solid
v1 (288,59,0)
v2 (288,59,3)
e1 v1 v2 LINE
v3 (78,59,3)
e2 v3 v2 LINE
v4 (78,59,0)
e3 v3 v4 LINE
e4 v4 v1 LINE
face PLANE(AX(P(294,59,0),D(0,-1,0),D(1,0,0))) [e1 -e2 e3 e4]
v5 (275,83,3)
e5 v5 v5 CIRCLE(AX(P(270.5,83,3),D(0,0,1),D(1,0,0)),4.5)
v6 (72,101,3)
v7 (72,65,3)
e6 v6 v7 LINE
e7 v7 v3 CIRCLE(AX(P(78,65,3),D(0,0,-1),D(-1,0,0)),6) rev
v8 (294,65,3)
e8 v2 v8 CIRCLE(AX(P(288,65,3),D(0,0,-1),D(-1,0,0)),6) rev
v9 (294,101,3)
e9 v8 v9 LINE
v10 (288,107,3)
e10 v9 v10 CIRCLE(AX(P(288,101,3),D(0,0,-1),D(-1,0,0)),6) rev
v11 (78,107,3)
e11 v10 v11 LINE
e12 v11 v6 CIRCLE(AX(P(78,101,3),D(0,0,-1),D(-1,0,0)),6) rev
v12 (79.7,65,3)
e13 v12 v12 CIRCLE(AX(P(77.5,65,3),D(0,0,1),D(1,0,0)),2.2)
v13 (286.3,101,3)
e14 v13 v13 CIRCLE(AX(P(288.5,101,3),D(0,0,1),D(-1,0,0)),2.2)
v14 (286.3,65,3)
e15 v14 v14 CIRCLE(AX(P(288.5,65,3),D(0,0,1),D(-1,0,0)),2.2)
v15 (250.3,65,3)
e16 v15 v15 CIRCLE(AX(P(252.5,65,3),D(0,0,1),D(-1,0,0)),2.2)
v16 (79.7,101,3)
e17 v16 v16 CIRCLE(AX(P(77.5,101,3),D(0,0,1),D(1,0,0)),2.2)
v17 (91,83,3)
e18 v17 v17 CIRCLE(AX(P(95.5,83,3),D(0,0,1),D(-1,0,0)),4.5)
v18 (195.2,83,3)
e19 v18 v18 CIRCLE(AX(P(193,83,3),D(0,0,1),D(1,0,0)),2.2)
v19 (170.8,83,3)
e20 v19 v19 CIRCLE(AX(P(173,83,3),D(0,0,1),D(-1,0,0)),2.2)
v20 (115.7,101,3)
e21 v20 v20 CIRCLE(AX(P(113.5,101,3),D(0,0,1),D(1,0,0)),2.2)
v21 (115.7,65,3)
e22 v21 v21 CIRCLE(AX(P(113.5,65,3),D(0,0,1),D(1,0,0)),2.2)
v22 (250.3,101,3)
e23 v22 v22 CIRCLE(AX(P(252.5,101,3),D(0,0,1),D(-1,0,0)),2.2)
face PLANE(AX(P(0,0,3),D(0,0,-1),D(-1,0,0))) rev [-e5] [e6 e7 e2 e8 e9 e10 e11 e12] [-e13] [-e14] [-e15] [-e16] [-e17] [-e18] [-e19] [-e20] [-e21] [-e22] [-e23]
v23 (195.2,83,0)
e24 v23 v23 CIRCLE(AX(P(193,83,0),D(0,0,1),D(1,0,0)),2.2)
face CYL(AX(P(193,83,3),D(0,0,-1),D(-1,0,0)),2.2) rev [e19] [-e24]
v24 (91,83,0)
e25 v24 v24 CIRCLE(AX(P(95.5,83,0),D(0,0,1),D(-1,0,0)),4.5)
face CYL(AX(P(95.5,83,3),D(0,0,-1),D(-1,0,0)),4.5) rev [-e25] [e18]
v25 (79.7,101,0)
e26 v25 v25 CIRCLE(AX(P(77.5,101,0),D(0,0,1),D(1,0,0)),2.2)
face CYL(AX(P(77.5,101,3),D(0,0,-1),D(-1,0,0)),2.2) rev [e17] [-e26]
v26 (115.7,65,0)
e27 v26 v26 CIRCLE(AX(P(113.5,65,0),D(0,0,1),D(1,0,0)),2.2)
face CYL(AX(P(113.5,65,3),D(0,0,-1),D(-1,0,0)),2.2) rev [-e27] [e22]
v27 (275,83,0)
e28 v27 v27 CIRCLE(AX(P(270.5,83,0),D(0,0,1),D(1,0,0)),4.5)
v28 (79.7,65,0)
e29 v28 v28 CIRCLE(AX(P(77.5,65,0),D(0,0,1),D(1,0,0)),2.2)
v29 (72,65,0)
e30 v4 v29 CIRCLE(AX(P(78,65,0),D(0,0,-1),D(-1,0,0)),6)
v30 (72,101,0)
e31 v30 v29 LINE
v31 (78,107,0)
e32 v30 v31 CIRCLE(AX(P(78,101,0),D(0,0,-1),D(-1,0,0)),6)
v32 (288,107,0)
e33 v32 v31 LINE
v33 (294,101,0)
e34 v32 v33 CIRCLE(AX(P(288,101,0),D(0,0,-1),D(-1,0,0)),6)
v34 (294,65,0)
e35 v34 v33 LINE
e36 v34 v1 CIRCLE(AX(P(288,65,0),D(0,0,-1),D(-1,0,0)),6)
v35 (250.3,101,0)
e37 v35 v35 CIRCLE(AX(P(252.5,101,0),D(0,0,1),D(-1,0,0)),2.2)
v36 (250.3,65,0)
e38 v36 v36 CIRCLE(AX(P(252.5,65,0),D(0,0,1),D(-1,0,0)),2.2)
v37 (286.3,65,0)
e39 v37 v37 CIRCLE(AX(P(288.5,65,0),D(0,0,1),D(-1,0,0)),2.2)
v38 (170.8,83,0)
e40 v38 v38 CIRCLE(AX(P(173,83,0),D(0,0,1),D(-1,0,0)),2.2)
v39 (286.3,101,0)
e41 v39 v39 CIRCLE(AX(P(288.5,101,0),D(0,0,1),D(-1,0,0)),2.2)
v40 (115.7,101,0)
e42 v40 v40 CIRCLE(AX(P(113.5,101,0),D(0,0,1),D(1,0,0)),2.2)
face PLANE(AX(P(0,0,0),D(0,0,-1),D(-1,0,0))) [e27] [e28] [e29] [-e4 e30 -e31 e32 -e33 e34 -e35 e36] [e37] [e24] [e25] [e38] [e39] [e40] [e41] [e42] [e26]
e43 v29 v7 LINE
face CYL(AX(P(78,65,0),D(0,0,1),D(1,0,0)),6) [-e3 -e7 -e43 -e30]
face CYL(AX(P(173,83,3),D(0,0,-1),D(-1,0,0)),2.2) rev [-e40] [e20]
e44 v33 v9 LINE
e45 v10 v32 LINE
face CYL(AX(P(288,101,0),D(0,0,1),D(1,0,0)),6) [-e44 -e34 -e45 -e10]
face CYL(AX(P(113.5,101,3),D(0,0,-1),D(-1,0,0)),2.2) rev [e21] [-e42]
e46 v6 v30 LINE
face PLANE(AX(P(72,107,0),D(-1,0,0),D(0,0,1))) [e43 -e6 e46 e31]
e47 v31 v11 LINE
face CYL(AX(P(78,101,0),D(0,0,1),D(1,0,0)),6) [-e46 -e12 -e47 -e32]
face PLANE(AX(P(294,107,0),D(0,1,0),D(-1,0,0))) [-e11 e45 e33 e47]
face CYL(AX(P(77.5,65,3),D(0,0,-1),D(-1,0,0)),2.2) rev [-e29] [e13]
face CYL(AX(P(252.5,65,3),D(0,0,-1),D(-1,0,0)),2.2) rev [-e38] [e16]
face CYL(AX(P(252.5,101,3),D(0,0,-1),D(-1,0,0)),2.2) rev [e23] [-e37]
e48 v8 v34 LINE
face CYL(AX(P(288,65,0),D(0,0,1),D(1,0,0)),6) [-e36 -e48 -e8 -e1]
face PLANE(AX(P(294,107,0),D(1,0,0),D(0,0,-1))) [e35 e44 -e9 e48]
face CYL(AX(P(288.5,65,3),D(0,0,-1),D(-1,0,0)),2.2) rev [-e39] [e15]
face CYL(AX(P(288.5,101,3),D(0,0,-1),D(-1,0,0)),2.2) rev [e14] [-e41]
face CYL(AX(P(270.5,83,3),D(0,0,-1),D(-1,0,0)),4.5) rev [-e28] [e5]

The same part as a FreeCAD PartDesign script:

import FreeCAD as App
import Part
import Sketcher
from FreeCAD import Vector
Q = App.Units.Quantity


def edges_at(feature, points):
    """Names of the edges that pass closest to the given points."""
    edges = feature.Shape.Edges
    near = lambda p: min(range(len(edges)), key=lambda i: edges[i].distToShape(Part.Vertex(*p))[0])
    return sorted({f"Edge{near(p) + 1}" for p in points})


def add_polygon(sketch, points):
    """Adds a closed chain of lines whose ends are joined by coincident constraints."""
    first, n = sketch.GeometryCount, len(points)
    for a, b in zip(points, points[1:] + points[:1]):
        sketch.addGeometry(Part.LineSegment(App.Vector(*a, 0), App.Vector(*b, 0)), False)
    for i in range(n):
        sketch.addConstraint(Sketcher.Constraint("Coincident", first + i, 2, first + (i + 1) % n, 1))

doc = App.newDocument("Part")
body = doc.addObject("PartDesign::Body", "Body")

sketch1 = body.newObject("Sketcher::SketchObject", "Sketch")
sketch1.AttachmentSupport = (doc.getObject("XY_Plane"), [""])
sketch1.MapMode = "FlatFace"
add_polygon(sketch1, [(0, 166), (0, 0), (366, 0), (366, 166)])
sketch1.addGeometry(Part.Circle(Vector(13, 13, 0), Vector(0, 0, 1), 2.2), False)
sketch1.addGeometry(Part.Circle(Vector(173, 13, 0), Vector(0, 0, 1), 2.2), False)
sketch1.addGeometry(Part.Circle(Vector(13, 49, 0), Vector(0, 0, 1), 2.2), False)
sketch1.addGeometry(Part.Circle(Vector(37, 49, 0), Vector(0, 0, 1), 6.5), False)
sketch1.addGeometry(Part.Circle(Vector(61, 49, 0), Vector(0, 0, 1), 6.5), False)
sketch1.addGeometry(Part.Circle(Vector(85, 49, 0), Vector(0, 0, 1), 2.2), False)
sketch1.addGeometry(Part.Circle(Vector(77.5, 65, 0), Vector(0, 0, 1), 2.2), False)
sketch1.addGeometry(Part.Circle(Vector(113.5, 65, 0), Vector(0, 0, 1), 2.2), False)
sketch1.addGeometry(Part.Circle(Vector(193, 13, 0), Vector(0, 0, 1), 2.2), False)
sketch1.addGeometry(Part.Circle(Vector(353, 13, 0), Vector(0, 0, 1), 2.2), False)
sketch1.addGeometry(Part.Circle(Vector(252.5, 65, 0), Vector(0, 0, 1), 2.2), False)
sketch1.addGeometry(Part.Circle(Vector(288.5, 65, 0), Vector(0, 0, 1), 2.2), False)
sketch1.addGeometry(Part.Circle(Vector(13, 83, 0), Vector(0, 0, 1), 2.2), False)
sketch1.addGeometry(Part.Circle(Vector(95.5, 83, 0), Vector(0, 0, 1), 4.5), False)
sketch1.addGeometry(Part.Circle(Vector(77.5, 101, 0), Vector(0, 0, 1), 2.2), False)
sketch1.addGeometry(Part.Circle(Vector(113.5, 101, 0), Vector(0, 0, 1), 2.2), False)
sketch1.addGeometry(Part.Circle(Vector(173, 83, 0), Vector(0, 0, 1), 2.2), False)
sketch1.addGeometry(Part.Circle(Vector(13, 153, 0), Vector(0, 0, 1), 2.2), False)
sketch1.addGeometry(Part.Circle(Vector(173, 153, 0), Vector(0, 0, 1), 2.2), False)
sketch1.addGeometry(Part.Circle(Vector(193, 83, 0), Vector(0, 0, 1), 2.2), False)
sketch1.addGeometry(Part.Circle(Vector(252.5, 101, 0), Vector(0, 0, 1), 2.2), False)
sketch1.addGeometry(Part.Circle(Vector(270.5, 83, 0), Vector(0, 0, 1), 4.5), False)
sketch1.addGeometry(Part.Circle(Vector(288.5, 101, 0), Vector(0, 0, 1), 2.2), False)
sketch1.addGeometry(Part.Circle(Vector(353, 83, 0), Vector(0, 0, 1), 2.2), False)
sketch1.addGeometry(Part.Circle(Vector(193, 153, 0), Vector(0, 0, 1), 2.2), False)
sketch1.addGeometry(Part.Circle(Vector(353, 153, 0), Vector(0, 0, 1), 2.2), False)
sketch1.addConstraint(Sketcher.Constraint("Vertical", 0))
sketch1.addConstraint(Sketcher.Constraint("Horizontal", 1))
sketch1.addConstraint(Sketcher.Constraint("Vertical", 2))
sketch1.addConstraint(Sketcher.Constraint("Horizontal", 3))
sketch1.addConstraint(Sketcher.Constraint("Coincident", 0, 2, -1, 1))
sketch1.addConstraint(Sketcher.Constraint("Equal", 4, 5))
sketch1.addConstraint(Sketcher.Constraint("Equal", 5, 6))
sketch1.addConstraint(Sketcher.Constraint("Equal", 7, 8))
sketch1.addConstraint(Sketcher.Constraint("Equal", 6, 9))
sketch1.addConstraint(Sketcher.Constraint("Equal", 9, 10))
sketch1.addConstraint(Sketcher.Constraint("Equal", 10, 11))
sketch1.addConstraint(Sketcher.Constraint("Equal", 11, 12))
sketch1.addConstraint(Sketcher.Constraint("Equal", 12, 13))
sketch1.addConstraint(Sketcher.Constraint("Equal", 13, 14))
sketch1.addConstraint(Sketcher.Constraint("Equal", 14, 15))
sketch1.addConstraint(Sketcher.Constraint("Equal", 15, 16))
sketch1.addConstraint(Sketcher.Constraint("Equal", 16, 18))
sketch1.addConstraint(Sketcher.Constraint("Equal", 18, 19))
sketch1.addConstraint(Sketcher.Constraint("Equal", 19, 20))
sketch1.addConstraint(Sketcher.Constraint("Equal", 20, 21))
sketch1.addConstraint(Sketcher.Constraint("Equal", 21, 22))
sketch1.addConstraint(Sketcher.Constraint("Equal", 22, 23))
sketch1.addConstraint(Sketcher.Constraint("Equal", 23, 24))
sketch1.addConstraint(Sketcher.Constraint("Equal", 17, 25))
sketch1.addConstraint(Sketcher.Constraint("Equal", 24, 26))
sketch1.addConstraint(Sketcher.Constraint("Equal", 26, 27))
sketch1.addConstraint(Sketcher.Constraint("Equal", 27, 28))
sketch1.addConstraint(Sketcher.Constraint("Equal", 28, 29))
sketch1.addConstraint(Sketcher.Constraint("Horizontal", 4, 3, 5, 3))
sketch1.addConstraint(Sketcher.Constraint("Horizontal", 6, 3, 7, 3))
sketch1.addConstraint(Sketcher.Constraint("Horizontal", 7, 3, 8, 3))
sketch1.addConstraint(Sketcher.Constraint("Horizontal", 8, 3, 9, 3))
sketch1.addConstraint(Sketcher.Constraint("Horizontal", 10, 3, 11, 3))
sketch1.addConstraint(Sketcher.Constraint("Horizontal", 5, 3, 12, 3))
sketch1.addConstraint(Sketcher.Constraint("Horizontal", 12, 3, 13, 3))
sketch1.addConstraint(Sketcher.Constraint("Horizontal", 11, 3, 14, 3))
sketch1.addConstraint(Sketcher.Constraint("Horizontal", 14, 3, 15, 3))
sketch1.addConstraint(Sketcher.Constraint("Horizontal", 16, 3, 17, 3))
sketch1.addConstraint(Sketcher.Constraint("Horizontal", 18, 3, 19, 3))
sketch1.addConstraint(Sketcher.Constraint("Horizontal", 17, 3, 20, 3))
sketch1.addConstraint(Sketcher.Constraint("Horizontal", 21, 3, 22, 3))
sketch1.addConstraint(Sketcher.Constraint("Horizontal", 20, 3, 23, 3))
sketch1.addConstraint(Sketcher.Constraint("Horizontal", 19, 3, 24, 3))
sketch1.addConstraint(Sketcher.Constraint("Horizontal", 23, 3, 25, 3))
sketch1.addConstraint(Sketcher.Constraint("Horizontal", 24, 3, 26, 3))
sketch1.addConstraint(Sketcher.Constraint("Horizontal", 25, 3, 27, 3))
sketch1.addConstraint(Sketcher.Constraint("Horizontal", 22, 3, 28, 3))
sketch1.addConstraint(Sketcher.Constraint("Horizontal", 28, 3, 29, 3))
sketch1.addConstraint(Sketcher.Constraint("Vertical", 4, 3, 6, 3))
sketch1.addConstraint(Sketcher.Constraint("Vertical", 6, 3, 16, 3))
sketch1.addConstraint(Sketcher.Constraint("Vertical", 10, 3, 18, 3))
sketch1.addConstraint(Sketcher.Constraint("Vertical", 11, 3, 19, 3))
sketch1.addConstraint(Sketcher.Constraint("Vertical", 5, 3, 20, 3))
sketch1.addConstraint(Sketcher.Constraint("Vertical", 16, 3, 21, 3))
sketch1.addConstraint(Sketcher.Constraint("Vertical", 20, 3, 22, 3))
sketch1.addConstraint(Sketcher.Constraint("Vertical", 12, 3, 23, 3))
sketch1.addConstraint(Sketcher.Constraint("Vertical", 14, 3, 24, 3))
sketch1.addConstraint(Sketcher.Constraint("Vertical", 15, 3, 26, 3))
sketch1.addConstraint(Sketcher.Constraint("Vertical", 13, 3, 27, 3))
sketch1.addConstraint(Sketcher.Constraint("Vertical", 23, 3, 28, 3))
sketch1.addConstraint(Sketcher.Constraint("Vertical", 27, 3, 29, 3))
sketch1.addConstraint(Sketcher.Constraint("Diameter", 7, Q("13 mm")))
sketch1.addConstraint(Sketcher.Constraint("Diameter", 17, Q("9 mm")))
sketch1.addConstraint(Sketcher.Constraint("Diameter", 4, Q("4.4 mm")))
sketch1.addConstraint(Sketcher.Constraint("DistanceX", 1, 1, 1, 2, Q("366 mm")))
sketch1.addConstraint(Sketcher.Constraint("DistanceY", 0, 2, 0, 1, Q("166 mm")))
sketch1.addConstraint(Sketcher.Constraint("DistanceX", -1, 1, 4, 3, Q("13 mm")))
sketch1.addConstraint(Sketcher.Constraint("DistanceY", -1, 1, 4, 3, Q("13 mm")))
sketch1.addConstraint(Sketcher.Constraint("DistanceX", -1, 1, 5, 3, Q("173 mm")))
sketch1.addConstraint(Sketcher.Constraint("DistanceY", -1, 1, 6, 3, Q("49 mm")))
sketch1.addConstraint(Sketcher.Constraint("DistanceX", -1, 1, 7, 3, Q("37 mm")))
sketch1.addConstraint(Sketcher.Constraint("DistanceX", -1, 1, 8, 3, Q("61 mm")))
sketch1.addConstraint(Sketcher.Constraint("DistanceX", -1, 1, 9, 3, Q("85 mm")))
sketch1.addConstraint(Sketcher.Constraint("DistanceY", -1, 1, 10, 3, Q("65 mm")))
sketch1.addConstraint(Sketcher.Constraint("DistanceX", -1, 1, 12, 3, Q("193 mm")))
sketch1.addConstraint(Sketcher.Constraint("DistanceX", -1, 1, 13, 3, Q("353 mm")))
sketch1.addConstraint(Sketcher.Constraint("DistanceY", -1, 1, 16, 3, Q("83 mm")))
sketch1.addConstraint(Sketcher.Constraint("DistanceY", -1, 1, 18, 3, Q("101 mm")))
sketch1.addConstraint(Sketcher.Constraint("DistanceY", -1, 1, 21, 3, Q("153 mm")))
sketch1.addConstraint(Sketcher.Constraint("DistanceX", 10, 3, 11, 3, Q("36 mm")))
sketch1.addConstraint(Sketcher.Constraint("DistanceX", 11, 3, 14, 3, Q("139 mm")))
sketch1.addConstraint(Sketcher.Constraint("DistanceX", 14, 3, 15, 3, Q("36 mm")))
sketch1.addConstraint(Sketcher.Constraint("DistanceX", 10, 3, 17, 3, Q("18 mm")))
sketch1.addConstraint(Sketcher.Constraint("DistanceX", 14, 3, 25, 3, Q("18 mm")))
sketch1.addConstraint(Sketcher.Constraint("DistanceX", -1, 1, 10, 3, Q("77.5 mm")))
pad1 = body.newObject("PartDesign::Pad", "Pad")
pad1.Profile = sketch1
pad1.Length = 3

sketch2 = body.newObject("Sketcher::SketchObject", "Sketch001")
sketch2.AttachmentSupport = (doc.getObject("XY_Plane"), [""])
sketch2.MapMode = "FlatFace"
sketch2.AttachmentOffset = App.Placement(Vector(0, 0, 3), App.Rotation())
add_polygon(sketch2, [(-41, 207), (-41, -41), (407, -41), (407, 207)])
add_polygon(sketch2, [(294, 59), (72, 59), (72, 107), (294, 107)])
sketch2.addConstraint(Sketcher.Constraint("Vertical", 0))
sketch2.addConstraint(Sketcher.Constraint("Horizontal", 1))
sketch2.addConstraint(Sketcher.Constraint("Vertical", 2))
sketch2.addConstraint(Sketcher.Constraint("Horizontal", 3))
sketch2.addConstraint(Sketcher.Constraint("Horizontal", 4))
sketch2.addConstraint(Sketcher.Constraint("Vertical", 5))
sketch2.addConstraint(Sketcher.Constraint("Horizontal", 6))
sketch2.addConstraint(Sketcher.Constraint("Vertical", 7))
sketch2.addConstraint(Sketcher.Constraint("DistanceX", 4, 2, 4, 1, Q("222 mm")))
sketch2.addConstraint(Sketcher.Constraint("DistanceY", 5, 1, 5, 2, Q("48 mm")))
sketch2.addConstraint(Sketcher.Constraint("DistanceX", -1, 1, 4, 2, Q("72 mm")))
sketch2.addConstraint(Sketcher.Constraint("DistanceY", -1, 1, 4, 2, Q("59 mm")))
sketch2.addConstraint(Sketcher.Constraint("DistanceX", 1, 1, 1, 2, Q("448.38 mm")))
sketch2.addConstraint(Sketcher.Constraint("DistanceY", 0, 2, 0, 1, Q("248.38 mm")))
sketch2.addConstraint(Sketcher.Constraint("DistanceX", 0, 2, -1, 1, Q("41.19 mm")))
sketch2.addConstraint(Sketcher.Constraint("DistanceY", 0, 2, -1, 1, Q("41.19 mm")))
pocket1 = body.newObject("PartDesign::Pocket", "Pocket")
pocket1.Profile = sketch2
pocket1.Type = "ThroughAll"
doc.recompute()

fillet = body.newObject("PartDesign::Fillet", "Fillet")
fillet.Base = (pocket1, edges_at(pocket1, [
    (72, 107, 1.5),
    (294, 107, 1.5),
    (294, 59, 1.5),
    (72, 59, 1.5),
]))
fillet.Radius = 6

doc.recompute()
